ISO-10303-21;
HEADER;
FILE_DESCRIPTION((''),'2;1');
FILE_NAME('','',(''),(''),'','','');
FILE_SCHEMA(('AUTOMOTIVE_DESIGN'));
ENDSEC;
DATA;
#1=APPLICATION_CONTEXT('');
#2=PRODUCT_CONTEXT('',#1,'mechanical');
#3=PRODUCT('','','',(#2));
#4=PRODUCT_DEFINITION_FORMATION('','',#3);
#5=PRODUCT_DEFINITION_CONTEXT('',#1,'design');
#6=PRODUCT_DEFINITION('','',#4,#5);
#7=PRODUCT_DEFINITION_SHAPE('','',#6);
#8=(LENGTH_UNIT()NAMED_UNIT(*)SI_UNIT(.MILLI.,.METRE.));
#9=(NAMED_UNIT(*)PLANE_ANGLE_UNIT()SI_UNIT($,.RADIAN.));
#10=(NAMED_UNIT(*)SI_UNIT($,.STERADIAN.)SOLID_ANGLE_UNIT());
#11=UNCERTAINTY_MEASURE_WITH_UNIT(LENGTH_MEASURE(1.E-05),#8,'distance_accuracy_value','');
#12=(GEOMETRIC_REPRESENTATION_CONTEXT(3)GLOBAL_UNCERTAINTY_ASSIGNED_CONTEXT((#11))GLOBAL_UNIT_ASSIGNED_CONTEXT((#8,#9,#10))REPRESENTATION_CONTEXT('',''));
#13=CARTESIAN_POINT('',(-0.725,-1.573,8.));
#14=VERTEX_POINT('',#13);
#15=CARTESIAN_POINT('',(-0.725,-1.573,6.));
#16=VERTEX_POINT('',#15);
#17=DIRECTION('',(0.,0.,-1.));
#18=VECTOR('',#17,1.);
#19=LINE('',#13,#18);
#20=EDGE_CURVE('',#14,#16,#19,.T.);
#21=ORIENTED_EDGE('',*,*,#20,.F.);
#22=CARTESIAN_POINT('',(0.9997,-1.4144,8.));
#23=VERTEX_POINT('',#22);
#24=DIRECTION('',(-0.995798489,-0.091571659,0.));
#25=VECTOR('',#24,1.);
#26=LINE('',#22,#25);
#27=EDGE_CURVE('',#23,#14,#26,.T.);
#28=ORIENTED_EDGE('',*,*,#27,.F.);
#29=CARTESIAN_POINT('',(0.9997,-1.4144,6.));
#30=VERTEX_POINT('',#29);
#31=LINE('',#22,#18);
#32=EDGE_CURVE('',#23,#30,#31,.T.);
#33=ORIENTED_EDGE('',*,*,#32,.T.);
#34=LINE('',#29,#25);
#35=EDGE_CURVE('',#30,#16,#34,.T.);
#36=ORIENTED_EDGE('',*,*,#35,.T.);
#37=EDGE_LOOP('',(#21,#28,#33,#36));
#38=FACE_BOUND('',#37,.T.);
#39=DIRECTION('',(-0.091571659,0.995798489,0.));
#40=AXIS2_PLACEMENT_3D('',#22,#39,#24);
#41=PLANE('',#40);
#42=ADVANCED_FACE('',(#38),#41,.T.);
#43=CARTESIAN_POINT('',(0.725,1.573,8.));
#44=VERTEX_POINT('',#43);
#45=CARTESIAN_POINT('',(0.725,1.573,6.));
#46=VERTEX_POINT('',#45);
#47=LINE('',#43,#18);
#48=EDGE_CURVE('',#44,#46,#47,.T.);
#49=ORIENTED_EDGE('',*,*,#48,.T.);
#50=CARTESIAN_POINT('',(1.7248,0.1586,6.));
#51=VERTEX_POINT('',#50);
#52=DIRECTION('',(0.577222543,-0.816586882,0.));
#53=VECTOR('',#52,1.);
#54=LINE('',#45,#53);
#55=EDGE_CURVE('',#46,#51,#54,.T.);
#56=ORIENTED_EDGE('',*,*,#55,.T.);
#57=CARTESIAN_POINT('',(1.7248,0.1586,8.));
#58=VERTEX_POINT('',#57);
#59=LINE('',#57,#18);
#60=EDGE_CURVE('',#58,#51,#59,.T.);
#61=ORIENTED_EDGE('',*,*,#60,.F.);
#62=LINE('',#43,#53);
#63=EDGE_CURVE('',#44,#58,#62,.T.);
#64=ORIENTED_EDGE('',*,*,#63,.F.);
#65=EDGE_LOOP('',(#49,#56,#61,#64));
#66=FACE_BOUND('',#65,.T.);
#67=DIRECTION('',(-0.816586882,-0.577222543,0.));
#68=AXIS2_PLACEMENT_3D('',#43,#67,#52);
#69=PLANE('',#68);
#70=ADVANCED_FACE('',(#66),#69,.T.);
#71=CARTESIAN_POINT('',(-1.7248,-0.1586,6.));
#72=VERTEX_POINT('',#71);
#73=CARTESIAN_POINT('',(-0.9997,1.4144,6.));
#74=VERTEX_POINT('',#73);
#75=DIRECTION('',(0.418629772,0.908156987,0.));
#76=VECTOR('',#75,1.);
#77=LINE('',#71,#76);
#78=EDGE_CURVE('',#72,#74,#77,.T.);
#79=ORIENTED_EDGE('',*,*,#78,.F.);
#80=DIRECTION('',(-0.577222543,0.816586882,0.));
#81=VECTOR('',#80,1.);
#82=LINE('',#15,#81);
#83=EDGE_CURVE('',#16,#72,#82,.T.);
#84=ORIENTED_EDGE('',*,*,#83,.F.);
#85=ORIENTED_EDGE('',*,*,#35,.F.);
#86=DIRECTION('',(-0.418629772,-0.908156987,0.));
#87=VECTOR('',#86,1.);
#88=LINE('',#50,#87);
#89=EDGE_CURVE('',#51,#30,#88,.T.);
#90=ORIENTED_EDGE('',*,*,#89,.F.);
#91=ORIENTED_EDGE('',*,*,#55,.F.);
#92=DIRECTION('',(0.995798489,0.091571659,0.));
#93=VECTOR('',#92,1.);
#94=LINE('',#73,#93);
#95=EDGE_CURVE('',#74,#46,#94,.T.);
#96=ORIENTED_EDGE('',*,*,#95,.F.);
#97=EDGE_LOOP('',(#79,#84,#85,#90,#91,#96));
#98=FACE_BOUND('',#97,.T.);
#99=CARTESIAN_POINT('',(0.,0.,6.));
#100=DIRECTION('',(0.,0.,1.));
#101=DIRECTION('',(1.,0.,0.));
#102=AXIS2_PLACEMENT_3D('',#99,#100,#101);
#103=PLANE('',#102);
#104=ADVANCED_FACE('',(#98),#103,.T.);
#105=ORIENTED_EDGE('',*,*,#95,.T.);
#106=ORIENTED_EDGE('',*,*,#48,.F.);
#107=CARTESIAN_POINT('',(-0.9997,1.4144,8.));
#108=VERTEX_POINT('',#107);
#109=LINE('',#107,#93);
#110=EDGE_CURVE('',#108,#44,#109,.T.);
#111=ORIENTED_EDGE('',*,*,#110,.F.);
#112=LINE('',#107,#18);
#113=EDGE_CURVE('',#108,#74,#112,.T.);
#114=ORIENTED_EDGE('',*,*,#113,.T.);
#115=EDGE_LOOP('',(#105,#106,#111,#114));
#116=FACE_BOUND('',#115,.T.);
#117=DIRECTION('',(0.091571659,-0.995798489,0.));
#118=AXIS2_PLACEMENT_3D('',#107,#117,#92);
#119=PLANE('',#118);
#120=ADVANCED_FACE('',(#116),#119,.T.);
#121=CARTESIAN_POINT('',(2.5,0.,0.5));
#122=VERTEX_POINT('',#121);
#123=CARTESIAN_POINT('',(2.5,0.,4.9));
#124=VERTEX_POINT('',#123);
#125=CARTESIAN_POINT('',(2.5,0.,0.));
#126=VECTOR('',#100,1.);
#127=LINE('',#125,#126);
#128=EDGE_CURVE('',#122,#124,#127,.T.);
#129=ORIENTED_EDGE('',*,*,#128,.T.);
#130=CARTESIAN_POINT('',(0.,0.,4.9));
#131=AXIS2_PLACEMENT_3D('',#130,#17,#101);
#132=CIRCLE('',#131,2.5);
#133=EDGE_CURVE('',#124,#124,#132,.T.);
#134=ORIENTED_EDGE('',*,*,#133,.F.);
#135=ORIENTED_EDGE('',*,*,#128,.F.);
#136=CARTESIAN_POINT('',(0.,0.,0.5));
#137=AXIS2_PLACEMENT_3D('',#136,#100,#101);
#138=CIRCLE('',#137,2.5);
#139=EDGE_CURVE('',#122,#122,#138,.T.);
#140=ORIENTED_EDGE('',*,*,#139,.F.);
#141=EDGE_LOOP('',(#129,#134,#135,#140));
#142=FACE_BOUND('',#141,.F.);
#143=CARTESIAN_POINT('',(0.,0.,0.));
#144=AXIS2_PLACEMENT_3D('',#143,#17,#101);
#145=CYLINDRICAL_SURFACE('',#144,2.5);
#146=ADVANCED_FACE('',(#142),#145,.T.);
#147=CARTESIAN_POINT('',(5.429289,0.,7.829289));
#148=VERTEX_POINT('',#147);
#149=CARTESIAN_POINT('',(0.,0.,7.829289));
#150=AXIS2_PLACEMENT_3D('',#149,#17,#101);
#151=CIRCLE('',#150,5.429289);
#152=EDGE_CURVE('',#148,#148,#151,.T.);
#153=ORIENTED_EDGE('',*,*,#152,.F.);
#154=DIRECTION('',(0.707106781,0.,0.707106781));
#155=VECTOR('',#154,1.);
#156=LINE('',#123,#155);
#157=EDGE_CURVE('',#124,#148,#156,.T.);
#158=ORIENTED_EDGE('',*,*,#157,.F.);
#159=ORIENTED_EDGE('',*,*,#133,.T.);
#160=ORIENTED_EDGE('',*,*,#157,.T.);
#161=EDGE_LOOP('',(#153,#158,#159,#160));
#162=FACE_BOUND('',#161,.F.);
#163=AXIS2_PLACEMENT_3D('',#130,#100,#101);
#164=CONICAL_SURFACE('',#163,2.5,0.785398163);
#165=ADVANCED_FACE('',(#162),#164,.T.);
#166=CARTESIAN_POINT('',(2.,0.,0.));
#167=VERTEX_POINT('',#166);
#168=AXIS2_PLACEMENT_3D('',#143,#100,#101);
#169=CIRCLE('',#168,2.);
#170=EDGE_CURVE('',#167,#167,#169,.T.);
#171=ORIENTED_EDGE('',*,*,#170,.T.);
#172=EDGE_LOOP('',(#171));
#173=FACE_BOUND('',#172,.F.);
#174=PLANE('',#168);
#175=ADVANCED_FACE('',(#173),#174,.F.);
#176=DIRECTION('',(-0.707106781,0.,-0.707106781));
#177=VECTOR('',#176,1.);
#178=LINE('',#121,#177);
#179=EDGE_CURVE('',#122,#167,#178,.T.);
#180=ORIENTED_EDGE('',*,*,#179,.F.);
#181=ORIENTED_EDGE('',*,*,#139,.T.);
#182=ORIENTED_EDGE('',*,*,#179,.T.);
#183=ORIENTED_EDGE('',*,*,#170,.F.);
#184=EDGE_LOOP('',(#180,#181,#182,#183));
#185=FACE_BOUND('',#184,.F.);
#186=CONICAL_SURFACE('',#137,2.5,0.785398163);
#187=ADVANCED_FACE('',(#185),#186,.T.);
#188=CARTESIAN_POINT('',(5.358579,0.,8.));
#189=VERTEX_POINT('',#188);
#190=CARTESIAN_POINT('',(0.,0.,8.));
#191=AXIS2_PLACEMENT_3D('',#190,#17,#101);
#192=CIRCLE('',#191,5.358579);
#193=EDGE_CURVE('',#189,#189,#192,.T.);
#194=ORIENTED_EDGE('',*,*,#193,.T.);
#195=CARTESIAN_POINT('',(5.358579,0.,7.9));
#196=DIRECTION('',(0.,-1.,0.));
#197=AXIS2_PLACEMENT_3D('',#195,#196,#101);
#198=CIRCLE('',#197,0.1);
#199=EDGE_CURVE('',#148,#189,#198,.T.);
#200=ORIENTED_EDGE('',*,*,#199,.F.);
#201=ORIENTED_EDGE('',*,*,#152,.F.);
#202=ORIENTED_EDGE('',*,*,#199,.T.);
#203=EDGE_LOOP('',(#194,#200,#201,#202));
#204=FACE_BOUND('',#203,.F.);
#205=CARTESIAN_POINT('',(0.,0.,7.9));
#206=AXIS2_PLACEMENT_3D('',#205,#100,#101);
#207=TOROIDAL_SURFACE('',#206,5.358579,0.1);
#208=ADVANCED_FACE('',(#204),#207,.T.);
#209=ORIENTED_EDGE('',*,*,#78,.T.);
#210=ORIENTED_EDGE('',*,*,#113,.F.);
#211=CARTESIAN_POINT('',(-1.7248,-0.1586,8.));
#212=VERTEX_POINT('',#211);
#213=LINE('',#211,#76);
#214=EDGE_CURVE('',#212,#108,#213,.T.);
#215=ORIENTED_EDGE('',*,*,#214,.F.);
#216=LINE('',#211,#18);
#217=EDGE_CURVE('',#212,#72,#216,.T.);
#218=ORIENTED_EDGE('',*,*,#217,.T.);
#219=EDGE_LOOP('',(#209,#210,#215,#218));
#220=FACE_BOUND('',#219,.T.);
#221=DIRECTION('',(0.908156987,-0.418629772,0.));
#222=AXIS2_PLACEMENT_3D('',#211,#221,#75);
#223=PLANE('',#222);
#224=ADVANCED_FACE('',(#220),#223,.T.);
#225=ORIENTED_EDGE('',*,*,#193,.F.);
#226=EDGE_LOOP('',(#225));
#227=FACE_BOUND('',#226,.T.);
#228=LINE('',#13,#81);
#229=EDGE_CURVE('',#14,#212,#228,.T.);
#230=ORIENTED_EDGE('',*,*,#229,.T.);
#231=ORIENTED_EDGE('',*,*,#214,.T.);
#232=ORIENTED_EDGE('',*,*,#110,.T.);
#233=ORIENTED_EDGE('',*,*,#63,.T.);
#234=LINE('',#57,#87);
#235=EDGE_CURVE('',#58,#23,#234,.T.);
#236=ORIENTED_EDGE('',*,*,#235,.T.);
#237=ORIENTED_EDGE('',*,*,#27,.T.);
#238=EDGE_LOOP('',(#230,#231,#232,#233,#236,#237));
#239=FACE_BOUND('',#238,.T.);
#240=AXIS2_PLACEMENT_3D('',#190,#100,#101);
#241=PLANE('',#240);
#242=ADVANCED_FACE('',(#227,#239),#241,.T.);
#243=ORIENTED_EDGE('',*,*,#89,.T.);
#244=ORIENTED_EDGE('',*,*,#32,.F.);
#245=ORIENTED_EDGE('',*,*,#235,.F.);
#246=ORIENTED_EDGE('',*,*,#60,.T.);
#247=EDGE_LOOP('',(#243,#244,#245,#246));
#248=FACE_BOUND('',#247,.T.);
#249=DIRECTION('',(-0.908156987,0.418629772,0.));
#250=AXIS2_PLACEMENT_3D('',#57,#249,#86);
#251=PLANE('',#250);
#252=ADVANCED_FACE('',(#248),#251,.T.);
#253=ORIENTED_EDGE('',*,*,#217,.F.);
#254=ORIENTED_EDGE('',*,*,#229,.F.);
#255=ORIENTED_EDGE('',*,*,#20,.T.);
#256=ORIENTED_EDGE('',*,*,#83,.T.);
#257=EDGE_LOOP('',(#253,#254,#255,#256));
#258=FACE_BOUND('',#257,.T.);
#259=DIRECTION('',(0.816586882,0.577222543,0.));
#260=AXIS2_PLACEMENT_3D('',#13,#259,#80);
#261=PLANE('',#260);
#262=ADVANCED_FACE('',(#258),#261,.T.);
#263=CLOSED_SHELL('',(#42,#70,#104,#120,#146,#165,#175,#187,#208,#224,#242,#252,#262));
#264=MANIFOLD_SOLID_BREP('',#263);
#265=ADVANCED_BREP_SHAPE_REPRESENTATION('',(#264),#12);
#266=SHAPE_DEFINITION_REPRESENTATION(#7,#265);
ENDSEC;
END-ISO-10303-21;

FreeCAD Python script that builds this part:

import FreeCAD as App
import Part
import Sketcher
from FreeCAD import Vector


def edges_at(feature, points):
    """Names of the edges that pass closest to the given points."""
    edges = feature.Shape.Edges
    near = lambda p: min(range(len(edges)), key=lambda i: edges[i].distToShape(Part.Vertex(*p))[0])
    return sorted({f"Edge{near(p) + 1}" for p in points})

doc = App.newDocument("Part")
body = doc.addObject("PartDesign::Body", "Body")

# Sketch on XY plane
sketch1 = doc.addObject("Sketcher::SketchObject", "Sketch")
body.addObject(sketch1)
sketch1.AttachmentSupport = (doc.XY_Plane, [""])
sketch1.MapMode = "FlatFace"
sketch1.addGeometry(Part.Circle(Vector(0, 0, 0), Vector(0, 0, 1), 2.5), False)
sketch1.addConstraint([
    Sketcher.Constraint("Coincident", 0, 3, -1, 1),
    Sketcher.Constraint("Diameter", 0, 5.0),
])
pad1 = doc.addObject("PartDesign::Pad", "Pad")
body.addObject(pad1)
pad1.Profile = sketch1
pad1.Length = 4.9

# Sketch on XY plane
sketch2 = doc.addObject("Sketcher::SketchObject", "Sketch001")
body.addObject(sketch2)
sketch2.AttachmentSupport = (doc.XY_Plane, [""])
sketch2.MapMode = "FlatFace"
sketch2.AttachmentOffset = App.Placement(Vector(0, 0, 4.9), App.Rotation())
sketch2.addGeometry(Part.Circle(Vector(0, 0, 0), Vector(0, 0, 1), 2.5), False)
sketch2.addConstraint([
    Sketcher.Constraint("Coincident", 0, 3, -1, 1),
    Sketcher.Constraint("Diameter", 0, 5.0),
])
pad2 = doc.addObject("PartDesign::Pad", "Pad001")
body.addObject(pad2)
pad2.Profile = sketch2
pad2.Length = 3.1
pad2.TaperAngle = 45

# Sketch on XY plane
sketch3 = doc.addObject("Sketcher::SketchObject", "Sketch002")
body.addObject(sketch3)
sketch3.AttachmentSupport = (doc.XY_Plane, [""])
sketch3.MapMode = "FlatFace"
sketch3.AttachmentOffset = App.Placement(Vector(0, 0, 8), App.Rotation())
sketch3.addGeometry([
    Part.LineSegment(Vector(1.7, 0.2, 0), Vector(0.7, 1.6, 0)),  # 0
    Part.LineSegment(Vector(0.7, 1.6, 0), Vector(-1, 1.4, 0)),  # 1
    Part.LineSegment(Vector(-1, 1.4, 0), Vector(-1.7, -0.2, 0)),  # 2
    Part.LineSegment(Vector(-1.7, -0.2, 0), Vector(-0.7, -1.6, 0)),  # 3
    Part.LineSegment(Vector(-0.7, -1.6, 0), Vector(1, -1.4, 0)),  # 4
    Part.LineSegment(Vector(1, -1.4, 0), Vector(1.7, 0.2, 0)),  # 5
], False)
sketch3.addConstraint([
    Sketcher.Constraint("Coincident", 0, 2, 1, 1),
    Sketcher.Constraint("Coincident", 1, 2, 2, 1),
    Sketcher.Constraint("Coincident", 2, 2, 3, 1),
    Sketcher.Constraint("Coincident", 3, 2, 4, 1),
    Sketcher.Constraint("Coincident", 4, 2, 5, 1),
    Sketcher.Constraint("Coincident", 5, 2, 0, 1),
    Sketcher.Constraint("Symmetric", 0, 2, 3, 2, -1, 1),
    Sketcher.Constraint("Symmetric", 1, 2, 4, 2, -1, 1),
    Sketcher.Constraint("Symmetric", 2, 2, 5, 2, -1, 1),
    Sketcher.Constraint("Equal", 0, 1),
    Sketcher.Constraint("Equal", 1, 2),
    Sketcher.Constraint("DistanceX", 3, 2, 0, 2, 1.45),
    Sketcher.Constraint("Distance", 0, 1.732),
    Sketcher.Constraint("DistanceY", -1, 1, 0, 2, 1.573),
    Sketcher.Constraint("DistanceX", 2, 2, 1, 2, 0.725),
])
pocket1 = doc.addObject("PartDesign::Pocket", "Pocket")
body.addObject(pocket1)
pocket1.Profile = sketch3
pocket1.Length = 2
doc.recompute()

chamfer = doc.addObject("PartDesign::Chamfer", "Chamfer")
body.addObject(chamfer)
chamfer.Base = (pocket1, edges_at(pocket1, [(-2.5, 0, 0)]))
chamfer.Size = 0.5
doc.recompute()

fillet = doc.addObject("PartDesign::Fillet", "Fillet")
body.addObject(fillet)
fillet.Base = (chamfer, edges_at(chamfer, [(-5.6, 0, 8)]))
fillet.Radius = 0.1

doc.recompute()
